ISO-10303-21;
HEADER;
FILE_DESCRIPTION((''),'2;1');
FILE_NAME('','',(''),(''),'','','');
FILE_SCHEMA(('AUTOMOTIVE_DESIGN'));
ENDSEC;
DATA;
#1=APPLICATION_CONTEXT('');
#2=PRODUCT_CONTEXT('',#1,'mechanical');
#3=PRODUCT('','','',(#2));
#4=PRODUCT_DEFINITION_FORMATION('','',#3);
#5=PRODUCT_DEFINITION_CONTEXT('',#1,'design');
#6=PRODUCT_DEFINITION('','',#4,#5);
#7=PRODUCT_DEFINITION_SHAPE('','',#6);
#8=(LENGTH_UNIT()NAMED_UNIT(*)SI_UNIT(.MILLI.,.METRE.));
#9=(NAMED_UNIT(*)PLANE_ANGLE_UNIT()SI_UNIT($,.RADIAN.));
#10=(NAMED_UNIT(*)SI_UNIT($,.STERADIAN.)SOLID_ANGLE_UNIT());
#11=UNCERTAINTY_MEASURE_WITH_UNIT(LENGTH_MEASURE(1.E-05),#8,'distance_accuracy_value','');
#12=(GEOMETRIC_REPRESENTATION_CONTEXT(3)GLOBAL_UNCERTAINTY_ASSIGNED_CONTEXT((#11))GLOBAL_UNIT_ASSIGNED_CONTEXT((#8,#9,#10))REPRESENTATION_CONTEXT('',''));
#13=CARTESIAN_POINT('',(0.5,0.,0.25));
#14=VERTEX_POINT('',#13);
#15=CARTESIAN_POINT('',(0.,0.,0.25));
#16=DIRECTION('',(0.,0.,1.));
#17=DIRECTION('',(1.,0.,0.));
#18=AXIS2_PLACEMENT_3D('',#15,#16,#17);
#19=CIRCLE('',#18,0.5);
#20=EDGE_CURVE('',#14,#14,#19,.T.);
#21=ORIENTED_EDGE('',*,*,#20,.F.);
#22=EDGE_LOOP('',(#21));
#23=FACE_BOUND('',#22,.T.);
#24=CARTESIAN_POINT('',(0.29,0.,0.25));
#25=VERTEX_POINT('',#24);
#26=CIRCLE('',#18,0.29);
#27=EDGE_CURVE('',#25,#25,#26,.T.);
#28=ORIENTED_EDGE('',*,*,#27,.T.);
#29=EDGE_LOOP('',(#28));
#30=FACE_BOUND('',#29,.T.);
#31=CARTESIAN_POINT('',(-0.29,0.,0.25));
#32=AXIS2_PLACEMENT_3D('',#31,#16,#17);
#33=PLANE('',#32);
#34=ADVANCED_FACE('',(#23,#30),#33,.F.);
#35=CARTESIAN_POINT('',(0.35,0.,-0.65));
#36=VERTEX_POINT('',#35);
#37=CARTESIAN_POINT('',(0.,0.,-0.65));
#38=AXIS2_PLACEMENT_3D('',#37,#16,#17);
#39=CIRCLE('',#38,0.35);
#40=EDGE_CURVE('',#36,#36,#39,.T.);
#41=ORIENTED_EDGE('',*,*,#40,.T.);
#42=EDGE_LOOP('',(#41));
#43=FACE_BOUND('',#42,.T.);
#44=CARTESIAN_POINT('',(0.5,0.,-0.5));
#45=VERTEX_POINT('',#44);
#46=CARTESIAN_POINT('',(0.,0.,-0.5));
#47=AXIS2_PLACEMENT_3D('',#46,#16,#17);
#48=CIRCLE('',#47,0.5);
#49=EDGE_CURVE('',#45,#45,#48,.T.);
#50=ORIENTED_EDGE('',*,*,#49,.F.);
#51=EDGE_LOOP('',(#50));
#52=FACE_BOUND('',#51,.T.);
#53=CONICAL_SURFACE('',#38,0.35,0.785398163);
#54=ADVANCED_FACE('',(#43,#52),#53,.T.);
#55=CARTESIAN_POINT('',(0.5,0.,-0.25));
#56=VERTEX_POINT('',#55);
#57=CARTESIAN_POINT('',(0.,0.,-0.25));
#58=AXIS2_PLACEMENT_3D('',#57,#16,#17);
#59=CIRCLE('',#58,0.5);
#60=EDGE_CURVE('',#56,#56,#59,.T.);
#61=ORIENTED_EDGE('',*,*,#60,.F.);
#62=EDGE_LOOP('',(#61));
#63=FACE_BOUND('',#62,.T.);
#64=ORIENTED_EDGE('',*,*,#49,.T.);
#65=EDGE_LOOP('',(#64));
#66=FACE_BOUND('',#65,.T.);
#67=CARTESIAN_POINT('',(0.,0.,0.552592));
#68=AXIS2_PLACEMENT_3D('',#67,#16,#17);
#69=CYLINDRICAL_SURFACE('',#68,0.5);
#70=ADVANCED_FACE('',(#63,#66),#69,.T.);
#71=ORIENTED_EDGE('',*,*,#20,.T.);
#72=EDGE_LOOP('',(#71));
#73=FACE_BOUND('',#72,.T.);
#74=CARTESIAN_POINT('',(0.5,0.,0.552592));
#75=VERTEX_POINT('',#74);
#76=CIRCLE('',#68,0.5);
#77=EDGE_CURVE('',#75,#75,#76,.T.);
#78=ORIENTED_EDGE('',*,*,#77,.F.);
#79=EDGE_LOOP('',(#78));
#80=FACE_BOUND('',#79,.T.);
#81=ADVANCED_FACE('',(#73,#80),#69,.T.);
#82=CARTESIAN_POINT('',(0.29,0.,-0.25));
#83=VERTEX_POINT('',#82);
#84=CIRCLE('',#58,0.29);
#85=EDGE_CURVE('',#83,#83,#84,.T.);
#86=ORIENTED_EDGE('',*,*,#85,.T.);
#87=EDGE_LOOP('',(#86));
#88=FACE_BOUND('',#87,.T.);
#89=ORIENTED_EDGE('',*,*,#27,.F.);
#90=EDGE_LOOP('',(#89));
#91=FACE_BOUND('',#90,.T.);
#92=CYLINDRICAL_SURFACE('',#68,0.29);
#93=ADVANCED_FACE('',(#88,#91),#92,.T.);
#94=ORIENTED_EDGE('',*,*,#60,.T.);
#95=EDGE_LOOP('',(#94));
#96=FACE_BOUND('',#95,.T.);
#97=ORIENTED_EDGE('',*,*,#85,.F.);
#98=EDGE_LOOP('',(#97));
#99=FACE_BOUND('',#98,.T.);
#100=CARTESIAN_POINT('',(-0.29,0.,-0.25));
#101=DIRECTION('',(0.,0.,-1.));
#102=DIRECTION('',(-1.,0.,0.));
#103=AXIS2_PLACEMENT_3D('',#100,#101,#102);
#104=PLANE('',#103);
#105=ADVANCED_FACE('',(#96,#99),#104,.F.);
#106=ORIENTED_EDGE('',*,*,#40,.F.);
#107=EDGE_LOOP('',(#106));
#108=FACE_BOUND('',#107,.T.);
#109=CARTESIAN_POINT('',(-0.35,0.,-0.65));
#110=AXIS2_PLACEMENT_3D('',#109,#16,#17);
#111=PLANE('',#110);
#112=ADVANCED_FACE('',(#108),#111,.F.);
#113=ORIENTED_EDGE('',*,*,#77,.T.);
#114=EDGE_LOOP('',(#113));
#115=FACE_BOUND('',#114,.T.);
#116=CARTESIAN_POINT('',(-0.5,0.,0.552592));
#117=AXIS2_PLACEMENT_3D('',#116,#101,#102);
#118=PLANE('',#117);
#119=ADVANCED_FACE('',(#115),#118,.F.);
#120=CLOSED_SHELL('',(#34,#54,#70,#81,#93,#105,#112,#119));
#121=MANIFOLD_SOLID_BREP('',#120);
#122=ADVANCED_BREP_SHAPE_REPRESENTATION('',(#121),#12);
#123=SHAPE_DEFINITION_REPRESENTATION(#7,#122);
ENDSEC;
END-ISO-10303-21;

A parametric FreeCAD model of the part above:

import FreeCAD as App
import Part
import Sketcher
Q = App.Units.Quantity


def add_polygon(sketch, points):
    """Adds a closed chain of lines whose ends are joined by coincident constraints."""
    first, n = sketch.GeometryCount, len(points)
    for a, b in zip(points, points[1:] + points[:1]):
        sketch.addGeometry(Part.LineSegment(App.Vector(*a, 0), App.Vector(*b, 0)), False)
    for i in range(n):
        sketch.addConstraint(Sketcher.Constraint("Coincident", first + i, 2, first + (i + 1) % n, 1))

doc = App.newDocument("Part")
params = doc.addObject("Spreadsheet::Sheet", "Params")
for row, (alias, value) in enumerate([
    ("sketch1_width", "0.5 mm"),
    ("sketch1_width2", "0.35 mm"),
    ("sketch1_width3", "0.21 mm"),
    ("sketch1_height", "0.25 mm"),
    ("revolution_angle", "360 deg"),
], start=1):
    params.set(f"A{row}", alias)
    params.set(f"B{row}", "=" + value)
    params.setAlias(f"B{row}", alias)

body = doc.addObject("PartDesign::Body", "Body")

sketch1 = doc.addObject("Sketcher::SketchObject", "Sketch")
body.addObject(sketch1)
sketch1.AttachmentSupport = (doc.XZ_Plane, [""])
sketch1.MapMode = "FlatFace"
add_polygon(sketch1, [(0, 0.552592), (0, -0.65), (-0.35, -0.65), (-0.5, -0.5), (-0.5, -0.25), (-0.29, -0.25), (-0.29, 0.25), (-0.5, 0.25), (-0.5, 0.552592)])
sketch1.addConstraint(Sketcher.Constraint("Vertical", 0))
sketch1.addConstraint(Sketcher.Constraint("Horizontal", 1))
sketch1.addConstraint(Sketcher.Constraint("Vertical", 3))
sketch1.addConstraint(Sketcher.Constraint("Horizontal", 4))
sketch1.addConstraint(Sketcher.Constraint("Vertical", 5))
sketch1.addConstraint(Sketcher.Constraint("Horizontal", 6))
sketch1.addConstraint(Sketcher.Constraint("Vertical", 7))
sketch1.addConstraint(Sketcher.Constraint("Horizontal", 8))
sketch1.addConstraint(Sketcher.Constraint("Symmetric", 3, 2, 6, 2, -1))
sketch1.addConstraint(Sketcher.Constraint("PointOnObject", 0, 2, -2))
sketch1.addConstraint(Sketcher.Constraint("Equal", 8, 5))
sketch1.addConstraint(Sketcher.Constraint("Angle", 2, Q("135 deg")))
sketch1.addConstraint(Sketcher.Constraint("DistanceX", 8, 1, 8, 2, Q("0.5 mm")))
sketch1.addConstraint(Sketcher.Constraint("DistanceX", 1, 2, 1, 1, Q("0.35 mm")))
sketch1.addConstraint(Sketcher.Constraint("DistanceX", 4, 1, 4, 2, Q("0.21 mm")))
sketch1.addConstraint(Sketcher.Constraint("DistanceY", 3, 1, 3, 2, Q("0.25 mm")))
sketch1.addConstraint(Sketcher.Constraint("DistanceY", 0, 2, 0, 1, Q("1.202592 mm")))
sketch1.setExpression("Constraints[21]", "Params.sketch1_width")
sketch1.setExpression("Constraints[22]", "Params.sketch1_width2")
sketch1.setExpression("Constraints[23]", "Params.sketch1_width3")
sketch1.setExpression("Constraints[24]", "Params.sketch1_height")
revolution = doc.addObject("PartDesign::Revolution", "Revolution")
body.addObject(revolution)
revolution.Profile = sketch1
revolution.ReferenceAxis = (sketch1, ["V_Axis"])
revolution.setExpression("Angle", "Params.revolution_angle")

doc.recompute()
